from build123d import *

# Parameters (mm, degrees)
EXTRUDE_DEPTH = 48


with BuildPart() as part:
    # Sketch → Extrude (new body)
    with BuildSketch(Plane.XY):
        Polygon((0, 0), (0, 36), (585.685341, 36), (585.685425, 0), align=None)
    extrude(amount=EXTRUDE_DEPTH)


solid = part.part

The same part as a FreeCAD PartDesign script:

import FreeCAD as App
import Part
import Sketcher
from FreeCAD import Vector

doc = App.newDocument("Part")
params = doc.addObject("Spreadsheet::Sheet", "Params")
for row, (alias, value) in enumerate([
    ("sketch1_height", "36 mm"),
    ("pad1_length", "48 mm"),
], start=1):
    params.set(f"A{row}", alias)
    params.set(f"B{row}", "=" + value)
    params.setAlias(f"B{row}", alias)

body = doc.addObject("PartDesign::Body", "Body")

# Sketch on XY plane
sketch1 = body.newObject("Sketcher::SketchObject", "Sketch")
sketch1.AttachmentSupport = (doc.getObject("XY_Plane"), [""])
sketch1.MapMode = "FlatFace"
sketch1.addGeometry([
    Part.LineSegment(Vector(0, 36, 0), Vector(0, 0, 0)),
    Part.LineSegment(Vector(0, 0, 0), Vector(586, 0, 0)),
    Part.LineSegment(Vector(586, 0, 0), Vector(586, 36, 0)),
    Part.LineSegment(Vector(586, 36, 0), Vector(0, 36, 0)),
], False)
sketch1.addConstraint([
    Sketcher.Constraint("Coincident", 0, 2, 1, 1),
    Sketcher.Constraint("Coincident", 1, 2, 2, 1),
    Sketcher.Constraint("Coincident", 2, 2, 3, 1),
    Sketcher.Constraint("Coincident", 3, 2, 0, 1),
    Sketcher.Constraint("Vertical", 0),
    Sketcher.Constraint("Horizontal", 1),
    Sketcher.Constraint("Horizontal", 3),
    Sketcher.Constraint("Coincident", 0, 2, -1, 1),
    Sketcher.Constraint("DistanceY", 0, 2, 0, 1, 36.0),
    Sketcher.Constraint("DistanceX", 3, 2, 3, 1, 585.685341),
    Sketcher.Constraint("DistanceX", 1, 1, 1, 2, 585.685425),
])
sketch1.setExpression("Constraints[8]", "Params.sketch1_height")
pad1 = body.newObject("PartDesign::Pad", "Pad")
pad1.Profile = sketch1
pad1.setExpression("Length", "Params.pad1_length")

doc.recompute()
